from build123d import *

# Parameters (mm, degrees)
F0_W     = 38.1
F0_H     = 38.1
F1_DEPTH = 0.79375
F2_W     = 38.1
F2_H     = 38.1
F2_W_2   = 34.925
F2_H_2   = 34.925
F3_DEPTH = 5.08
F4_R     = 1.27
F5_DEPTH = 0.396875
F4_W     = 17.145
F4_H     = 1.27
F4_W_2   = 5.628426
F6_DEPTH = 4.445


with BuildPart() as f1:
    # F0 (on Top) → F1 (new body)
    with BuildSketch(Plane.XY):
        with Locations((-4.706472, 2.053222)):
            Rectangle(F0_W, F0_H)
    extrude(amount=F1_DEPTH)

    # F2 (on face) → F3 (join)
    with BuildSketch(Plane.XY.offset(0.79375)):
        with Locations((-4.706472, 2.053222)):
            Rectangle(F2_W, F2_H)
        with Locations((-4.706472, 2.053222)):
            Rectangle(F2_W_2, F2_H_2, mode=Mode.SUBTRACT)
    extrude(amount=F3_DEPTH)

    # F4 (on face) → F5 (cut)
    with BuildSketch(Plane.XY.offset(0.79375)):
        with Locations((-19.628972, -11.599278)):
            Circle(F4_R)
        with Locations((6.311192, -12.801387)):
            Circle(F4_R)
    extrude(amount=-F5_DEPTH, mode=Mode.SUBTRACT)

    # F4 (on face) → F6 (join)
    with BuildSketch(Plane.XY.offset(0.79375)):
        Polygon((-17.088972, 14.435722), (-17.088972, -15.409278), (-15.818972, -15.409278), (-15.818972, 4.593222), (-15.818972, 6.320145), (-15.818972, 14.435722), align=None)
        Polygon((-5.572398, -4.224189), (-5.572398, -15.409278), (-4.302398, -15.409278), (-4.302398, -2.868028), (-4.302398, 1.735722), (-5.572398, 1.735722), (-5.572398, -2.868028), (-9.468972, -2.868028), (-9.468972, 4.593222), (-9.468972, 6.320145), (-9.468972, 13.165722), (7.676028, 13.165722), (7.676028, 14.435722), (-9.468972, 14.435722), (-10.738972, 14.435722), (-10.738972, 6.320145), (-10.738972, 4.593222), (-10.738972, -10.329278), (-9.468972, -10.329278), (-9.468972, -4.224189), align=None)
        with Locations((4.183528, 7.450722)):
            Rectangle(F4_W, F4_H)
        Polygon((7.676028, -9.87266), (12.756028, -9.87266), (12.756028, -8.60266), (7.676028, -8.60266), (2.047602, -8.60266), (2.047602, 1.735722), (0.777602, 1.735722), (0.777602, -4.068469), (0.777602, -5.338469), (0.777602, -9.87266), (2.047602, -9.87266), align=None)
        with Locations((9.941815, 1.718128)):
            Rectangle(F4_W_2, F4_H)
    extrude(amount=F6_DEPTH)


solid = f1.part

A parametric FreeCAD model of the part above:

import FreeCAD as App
import Part
import Sketcher
Q = App.Units.Quantity


def add_polygon(sketch, points):
    """Adds a closed chain of lines whose ends are joined by coincident constraints."""
    first, n = sketch.GeometryCount, len(points)
    for a, b in zip(points, points[1:] + points[:1]):
        sketch.addGeometry(Part.LineSegment(App.Vector(*a, 0), App.Vector(*b, 0)), False)
    for i in range(n):
        sketch.addConstraint(Sketcher.Constraint("Coincident", first + i, 2, first + (i + 1) % n, 1))

doc = App.newDocument("Part")
body = doc.addObject("PartDesign::Body", "Body")

sketch1 = body.newObject("Sketcher::SketchObject", "Sketch")
sketch1.AttachmentSupport = (doc.getObject("XY_Plane"), [""])
sketch1.MapMode = "FlatFace"
add_polygon(sketch1, [(-24, 21), (-24, -17), (14, -17), (14, 21)])
sketch1.addConstraint([
    Sketcher.Constraint("Vertical", 0),
    Sketcher.Constraint("Horizontal", 1),
    Sketcher.Constraint("Vertical", 2),
    Sketcher.Constraint("Horizontal", 3),
    Sketcher.Constraint("Equal", 3, 0),
    Sketcher.Constraint("DistanceX", 1, 1, 1, 2, Q("1.5 in")),
    Sketcher.Constraint("DistanceX", 0, 2, -1, 1, Q("23.756472 mm")),
    Sketcher.Constraint("DistanceY", -1, 1, 2, 2, Q("21.103222 mm")),
])
pad1 = body.newObject("PartDesign::Pad", "Pad")
pad1.Profile = sketch1
pad1.Length = Q("0.03125 in")

sketch2 = body.newObject("Sketcher::SketchObject", "Sketch001")
sketch2.AttachmentSupport = (doc.getObject("XY_Plane"), [""])
sketch2.MapMode = "FlatFace"
sketch2.AttachmentOffset = App.Placement(App.Vector(0, 0, 0.03125 * 25.4), App.Rotation())
add_polygon(sketch2, [(-24, 21), (-24, -17), (14, -17), (14, 21)])
add_polygon(sketch2, [(13, -15), (-22, -15), (-22, 20), (13, 20)])
sketch2.addConstraint([
    Sketcher.Constraint("Vertical", 0),
    Sketcher.Constraint("Horizontal", 1),
    Sketcher.Constraint("Vertical", 2),
    Sketcher.Constraint("Horizontal", 3),
    Sketcher.Constraint("Horizontal", 4),
    Sketcher.Constraint("Vertical", 5),
    Sketcher.Constraint("Horizontal", 6),
    Sketcher.Constraint("Vertical", 7),
    Sketcher.Constraint("Equal", 3, 0),
    Sketcher.Constraint("Equal", 6, 5),
    Sketcher.Constraint("DistanceX", 1, 1, 1, 2, Q("1.5 in")),
    Sketcher.Constraint("DistanceX", 4, 2, 4, 1, Q("1.375 in")),
    Sketcher.Constraint("DistanceX", 0, 2, 4, 2, Q("0.0625 in")),
    Sketcher.Constraint("DistanceY", 0, 2, 4, 2, Q("0.0625 in")),
    Sketcher.Constraint("DistanceX", 0, 2, -1, 1, Q("23.756472 mm")),
    Sketcher.Constraint("DistanceY", -1, 1, 2, 2, Q("21.103222 mm")),
])
pad2 = body.newObject("PartDesign::Pad", "Pad001")
pad2.Profile = sketch2
pad2.Length = Q("0.2 in")

sketch3 = body.newObject("Sketcher::SketchObject", "Sketch002")
sketch3.AttachmentSupport = (doc.getObject("XY_Plane"), [""])
sketch3.MapMode = "FlatFace"
sketch3.AttachmentOffset = App.Placement(App.Vector(0, 0, 0.03125 * 25.4), App.Rotation())
sketch3.addGeometry([
    Part.Circle(App.Vector(-19.6, -11.6, 0), App.Vector(0, 0, 1), 1.3),
    Part.Circle(App.Vector(6.3, -12.8, 0), App.Vector(0, 0, 1), 1.3),
], False)
sketch3.addConstraint([
    Sketcher.Constraint("Equal", 0, 1),
    Sketcher.Constraint("Diameter", 0, Q("0.1 in")),
    Sketcher.Constraint("DistanceY", 1, 3, 0, 3, Q("1.202109 mm")),
    Sketcher.Constraint("DistanceX", 0, 3, -1, 1, Q("19.628972 mm")),
    Sketcher.Constraint("DistanceY", 0, 3, -1, 1, Q("11.599278 mm")),
    Sketcher.Constraint("DistanceX", -1, 1, 1, 3, Q("6.311192 mm")),
])
pocket1 = body.newObject("PartDesign::Pocket", "Pocket")
pocket1.Profile = sketch3
pocket1.Length = Q("0.015625 in")

sketch4 = body.newObject("Sketcher::SketchObject", "Sketch003")
sketch4.AttachmentSupport = (doc.getObject("XY_Plane"), [""])
sketch4.MapMode = "FlatFace"
sketch4.AttachmentOffset = App.Placement(App.Vector(0, 0, 0.03125 * 25.4), App.Rotation())
add_polygon(sketch4, [(-17.1, 14.4), (-17.1, -15.4), (-15.8, -15.4), (-15.8, 14.4)])
add_polygon(sketch4, [(-5.6, -4.2), (-5.6, -15.4), (-4.3, -15.4), (-4.3, 1.7), (-5.6, 1.7), (-5.6, -2.9), (-9.5, -2.9), (-9.5, 13.2), (7.7, 13.2), (7.7, 14.4), (-10.7, 14.4), (-10.7, -10.3), (-9.5, -10.3), (-9.5, -4.2)])
add_polygon(sketch4, [(-4.4, 8.1), (-4.4, 6.8), (12.8, 6.8), (12.8, 8.1)])
add_polygon(sketch4, [(12.8, -9.9), (12.8, -8.6), (2, -8.6), (2, 1.7), (0.8, 1.7), (0.8, -9.9)])
add_polygon(sketch4, [(7.1, 2.4), (7.1, 1.1), (12.8, 1.1), (12.8, 2.4)])
sketch4.addConstraint([
    Sketcher.Constraint("Vertical", 0),
    Sketcher.Constraint("Horizontal", 1),
    Sketcher.Constraint("Vertical", 2),
    Sketcher.Constraint("Horizontal", 3),
    Sketcher.Constraint("Vertical", 4),
    Sketcher.Constraint("Horizontal", 5),
    Sketcher.Constraint("Vertical", 6),
    Sketcher.Constraint("Horizontal", 7),
    Sketcher.Constraint("Vertical", 8),
    Sketcher.Constraint("Horizontal", 9),
    Sketcher.Constraint("Vertical", 10),
    Sketcher.Constraint("Horizontal", 11),
    Sketcher.Constraint("Vertical", 12),
    Sketcher.Constraint("Horizontal", 13),
    Sketcher.Constraint("Vertical", 14),
    Sketcher.Constraint("Horizontal", 15),
    Sketcher.Constraint("Vertical", 16),
    Sketcher.Constraint("Horizontal", 17),
    Sketcher.Constraint("Vertical", 18),
    Sketcher.Constraint("Horizontal", 19),
    Sketcher.Constraint("Vertical", 20),
    Sketcher.Constraint("Horizontal", 21),
    Sketcher.Constraint("Vertical", 22),
    Sketcher.Constraint("Horizontal", 23),
    Sketcher.Constraint("Vertical", 24),
    Sketcher.Constraint("Horizontal", 25),
    Sketcher.Constraint("Vertical", 26),
    Sketcher.Constraint("Horizontal", 27),
    Sketcher.Constraint("Vertical", 28),
    Sketcher.Constraint("Horizontal", 29),
    Sketcher.Constraint("Vertical", 30),
    Sketcher.Constraint("Horizontal", 31),
    Sketcher.Constraint("Horizontal", 1, 2, 4, 2),
    Sketcher.Constraint("Horizontal", 3, 2, 12, 2),
    Sketcher.Constraint("Horizontal", 7, 2, 24, 2),
    Sketcher.Constraint("Vertical", 4, 2, 7, 2),
    Sketcher.Constraint("Vertical", 10, 2, 15, 2),
    Sketcher.Constraint("Vertical", 20, 2, 22, 2),
    Sketcher.Constraint("Vertical", 27, 2, 29, 2),
    Sketcher.Constraint("Equal", 3, 5),
    Sketcher.Constraint("Equal", 7, 15),
    Sketcher.Constraint("Equal", 11, 19),
    Sketcher.Constraint("Equal", 15, 25),
    Sketcher.Constraint("Equal", 21, 6),
    Sketcher.Constraint("Equal", 25, 12),
    Sketcher.Constraint("Equal", 12, 18),
    Sketcher.Constraint("Equal", 20, 22),
    Sketcher.Constraint("Equal", 22, 28),
    Sketcher.Constraint("DistanceX", 1, 1, 1, 2, Q("0.05 in")),
    Sketcher.Constraint("DistanceY", 6, 2, 2, 2, Q("0.5 in")),
    Sketcher.Constraint("DistanceX", 3, 2, 10, 2, Q("0.3 in")),
    Sketcher.Constraint("DistanceY", 1, 2, 14, 2, Q("0.2 in")),
    Sketcher.Constraint("DistanceY", 6, 2, 18, 2, Q("0.2 in")),
    Sketcher.Constraint("DistanceX", 10, 2, 18, 2, Q("0.2 in")),
    Sketcher.Constraint("DistanceX", 17, 2, 23, 2, Q("0.3 in")),
    Sketcher.Constraint("DistanceX", 24, 2, 28, 2, Q("0.2 in")),
    Sketcher.Constraint("DistanceX", 11, 1, 11, 2, Q("0.675 in")),
    Sketcher.Constraint("DistanceY", 4, 2, 4, 1, Q("11.185089 mm")),
    Sketcher.Constraint("DistanceY", 8, 2, 8, 1, Q("4.60375 mm")),
    Sketcher.Constraint("DistanceY", 24, 1, 24, 2, Q("10.338382 mm")),
    Sketcher.Constraint("DistanceX", 5, 2, -1, 1, Q("4.302398 mm")),
    Sketcher.Constraint("DistanceX", 9, 2, 9, 1, Q("3.896574 mm")),
    Sketcher.Constraint("DistanceY", 16, 2, -1, 1, Q("4.224189 mm")),
    Sketcher.Constraint("DistanceY", -1, 1, 28, 2, Q("1.083128 mm")),
])
pad3 = body.newObject("PartDesign::Pad", "Pad002")
pad3.Profile = sketch4
pad3.Length = Q("0.175 in")

doc.recompute()
